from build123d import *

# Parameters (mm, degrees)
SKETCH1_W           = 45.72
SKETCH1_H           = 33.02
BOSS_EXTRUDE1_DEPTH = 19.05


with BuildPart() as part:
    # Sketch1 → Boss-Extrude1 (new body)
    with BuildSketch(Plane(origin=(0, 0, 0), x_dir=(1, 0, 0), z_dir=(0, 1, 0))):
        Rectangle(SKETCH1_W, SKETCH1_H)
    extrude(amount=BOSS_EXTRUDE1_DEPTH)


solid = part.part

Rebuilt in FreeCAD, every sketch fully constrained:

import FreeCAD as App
import Part
import Sketcher
Q = App.Units.Quantity


def add_polygon(sketch, points):
    """Adds a closed chain of lines whose ends are joined by coincident constraints."""
    first, n = sketch.GeometryCount, len(points)
    for a, b in zip(points, points[1:] + points[:1]):
        sketch.addGeometry(Part.LineSegment(App.Vector(*a, 0), App.Vector(*b, 0)), False)
    for i in range(n):
        sketch.addConstraint(Sketcher.Constraint("Coincident", first + i, 2, first + (i + 1) % n, 1))

doc = App.newDocument("Part")
body = doc.addObject("PartDesign::Body", "Body")

sketch1 = body.newObject("Sketcher::SketchObject", "Sketch")
sketch1.AttachmentSupport = (doc.getObject("XZ_Plane"), [""])
sketch1.MapMode = "FlatFace"
add_polygon(sketch1, [(-23, -17), (-23, 17), (23, 17), (23, -17)])
sketch1.addConstraint([
    Sketcher.Constraint("Vertical", 0),
    Sketcher.Constraint("Horizontal", 1),
    Sketcher.Constraint("Vertical", 2),
    Sketcher.Constraint("Horizontal", 3),
    Sketcher.Constraint("Symmetric", 0, 2, 2, 2, -1, 1),
    Sketcher.Constraint("DistanceX", 1, 1, 1, 2, Q("1.8 in")),
    Sketcher.Constraint("DistanceY", 0, 1, 0, 2, Q("1.3 in")),
])
pad1 = body.newObject("PartDesign::Pad", "Pad")
pad1.Profile = sketch1
pad1.Length = Q("0.75 in")
pad1.Reversed = True

doc.recompute()
